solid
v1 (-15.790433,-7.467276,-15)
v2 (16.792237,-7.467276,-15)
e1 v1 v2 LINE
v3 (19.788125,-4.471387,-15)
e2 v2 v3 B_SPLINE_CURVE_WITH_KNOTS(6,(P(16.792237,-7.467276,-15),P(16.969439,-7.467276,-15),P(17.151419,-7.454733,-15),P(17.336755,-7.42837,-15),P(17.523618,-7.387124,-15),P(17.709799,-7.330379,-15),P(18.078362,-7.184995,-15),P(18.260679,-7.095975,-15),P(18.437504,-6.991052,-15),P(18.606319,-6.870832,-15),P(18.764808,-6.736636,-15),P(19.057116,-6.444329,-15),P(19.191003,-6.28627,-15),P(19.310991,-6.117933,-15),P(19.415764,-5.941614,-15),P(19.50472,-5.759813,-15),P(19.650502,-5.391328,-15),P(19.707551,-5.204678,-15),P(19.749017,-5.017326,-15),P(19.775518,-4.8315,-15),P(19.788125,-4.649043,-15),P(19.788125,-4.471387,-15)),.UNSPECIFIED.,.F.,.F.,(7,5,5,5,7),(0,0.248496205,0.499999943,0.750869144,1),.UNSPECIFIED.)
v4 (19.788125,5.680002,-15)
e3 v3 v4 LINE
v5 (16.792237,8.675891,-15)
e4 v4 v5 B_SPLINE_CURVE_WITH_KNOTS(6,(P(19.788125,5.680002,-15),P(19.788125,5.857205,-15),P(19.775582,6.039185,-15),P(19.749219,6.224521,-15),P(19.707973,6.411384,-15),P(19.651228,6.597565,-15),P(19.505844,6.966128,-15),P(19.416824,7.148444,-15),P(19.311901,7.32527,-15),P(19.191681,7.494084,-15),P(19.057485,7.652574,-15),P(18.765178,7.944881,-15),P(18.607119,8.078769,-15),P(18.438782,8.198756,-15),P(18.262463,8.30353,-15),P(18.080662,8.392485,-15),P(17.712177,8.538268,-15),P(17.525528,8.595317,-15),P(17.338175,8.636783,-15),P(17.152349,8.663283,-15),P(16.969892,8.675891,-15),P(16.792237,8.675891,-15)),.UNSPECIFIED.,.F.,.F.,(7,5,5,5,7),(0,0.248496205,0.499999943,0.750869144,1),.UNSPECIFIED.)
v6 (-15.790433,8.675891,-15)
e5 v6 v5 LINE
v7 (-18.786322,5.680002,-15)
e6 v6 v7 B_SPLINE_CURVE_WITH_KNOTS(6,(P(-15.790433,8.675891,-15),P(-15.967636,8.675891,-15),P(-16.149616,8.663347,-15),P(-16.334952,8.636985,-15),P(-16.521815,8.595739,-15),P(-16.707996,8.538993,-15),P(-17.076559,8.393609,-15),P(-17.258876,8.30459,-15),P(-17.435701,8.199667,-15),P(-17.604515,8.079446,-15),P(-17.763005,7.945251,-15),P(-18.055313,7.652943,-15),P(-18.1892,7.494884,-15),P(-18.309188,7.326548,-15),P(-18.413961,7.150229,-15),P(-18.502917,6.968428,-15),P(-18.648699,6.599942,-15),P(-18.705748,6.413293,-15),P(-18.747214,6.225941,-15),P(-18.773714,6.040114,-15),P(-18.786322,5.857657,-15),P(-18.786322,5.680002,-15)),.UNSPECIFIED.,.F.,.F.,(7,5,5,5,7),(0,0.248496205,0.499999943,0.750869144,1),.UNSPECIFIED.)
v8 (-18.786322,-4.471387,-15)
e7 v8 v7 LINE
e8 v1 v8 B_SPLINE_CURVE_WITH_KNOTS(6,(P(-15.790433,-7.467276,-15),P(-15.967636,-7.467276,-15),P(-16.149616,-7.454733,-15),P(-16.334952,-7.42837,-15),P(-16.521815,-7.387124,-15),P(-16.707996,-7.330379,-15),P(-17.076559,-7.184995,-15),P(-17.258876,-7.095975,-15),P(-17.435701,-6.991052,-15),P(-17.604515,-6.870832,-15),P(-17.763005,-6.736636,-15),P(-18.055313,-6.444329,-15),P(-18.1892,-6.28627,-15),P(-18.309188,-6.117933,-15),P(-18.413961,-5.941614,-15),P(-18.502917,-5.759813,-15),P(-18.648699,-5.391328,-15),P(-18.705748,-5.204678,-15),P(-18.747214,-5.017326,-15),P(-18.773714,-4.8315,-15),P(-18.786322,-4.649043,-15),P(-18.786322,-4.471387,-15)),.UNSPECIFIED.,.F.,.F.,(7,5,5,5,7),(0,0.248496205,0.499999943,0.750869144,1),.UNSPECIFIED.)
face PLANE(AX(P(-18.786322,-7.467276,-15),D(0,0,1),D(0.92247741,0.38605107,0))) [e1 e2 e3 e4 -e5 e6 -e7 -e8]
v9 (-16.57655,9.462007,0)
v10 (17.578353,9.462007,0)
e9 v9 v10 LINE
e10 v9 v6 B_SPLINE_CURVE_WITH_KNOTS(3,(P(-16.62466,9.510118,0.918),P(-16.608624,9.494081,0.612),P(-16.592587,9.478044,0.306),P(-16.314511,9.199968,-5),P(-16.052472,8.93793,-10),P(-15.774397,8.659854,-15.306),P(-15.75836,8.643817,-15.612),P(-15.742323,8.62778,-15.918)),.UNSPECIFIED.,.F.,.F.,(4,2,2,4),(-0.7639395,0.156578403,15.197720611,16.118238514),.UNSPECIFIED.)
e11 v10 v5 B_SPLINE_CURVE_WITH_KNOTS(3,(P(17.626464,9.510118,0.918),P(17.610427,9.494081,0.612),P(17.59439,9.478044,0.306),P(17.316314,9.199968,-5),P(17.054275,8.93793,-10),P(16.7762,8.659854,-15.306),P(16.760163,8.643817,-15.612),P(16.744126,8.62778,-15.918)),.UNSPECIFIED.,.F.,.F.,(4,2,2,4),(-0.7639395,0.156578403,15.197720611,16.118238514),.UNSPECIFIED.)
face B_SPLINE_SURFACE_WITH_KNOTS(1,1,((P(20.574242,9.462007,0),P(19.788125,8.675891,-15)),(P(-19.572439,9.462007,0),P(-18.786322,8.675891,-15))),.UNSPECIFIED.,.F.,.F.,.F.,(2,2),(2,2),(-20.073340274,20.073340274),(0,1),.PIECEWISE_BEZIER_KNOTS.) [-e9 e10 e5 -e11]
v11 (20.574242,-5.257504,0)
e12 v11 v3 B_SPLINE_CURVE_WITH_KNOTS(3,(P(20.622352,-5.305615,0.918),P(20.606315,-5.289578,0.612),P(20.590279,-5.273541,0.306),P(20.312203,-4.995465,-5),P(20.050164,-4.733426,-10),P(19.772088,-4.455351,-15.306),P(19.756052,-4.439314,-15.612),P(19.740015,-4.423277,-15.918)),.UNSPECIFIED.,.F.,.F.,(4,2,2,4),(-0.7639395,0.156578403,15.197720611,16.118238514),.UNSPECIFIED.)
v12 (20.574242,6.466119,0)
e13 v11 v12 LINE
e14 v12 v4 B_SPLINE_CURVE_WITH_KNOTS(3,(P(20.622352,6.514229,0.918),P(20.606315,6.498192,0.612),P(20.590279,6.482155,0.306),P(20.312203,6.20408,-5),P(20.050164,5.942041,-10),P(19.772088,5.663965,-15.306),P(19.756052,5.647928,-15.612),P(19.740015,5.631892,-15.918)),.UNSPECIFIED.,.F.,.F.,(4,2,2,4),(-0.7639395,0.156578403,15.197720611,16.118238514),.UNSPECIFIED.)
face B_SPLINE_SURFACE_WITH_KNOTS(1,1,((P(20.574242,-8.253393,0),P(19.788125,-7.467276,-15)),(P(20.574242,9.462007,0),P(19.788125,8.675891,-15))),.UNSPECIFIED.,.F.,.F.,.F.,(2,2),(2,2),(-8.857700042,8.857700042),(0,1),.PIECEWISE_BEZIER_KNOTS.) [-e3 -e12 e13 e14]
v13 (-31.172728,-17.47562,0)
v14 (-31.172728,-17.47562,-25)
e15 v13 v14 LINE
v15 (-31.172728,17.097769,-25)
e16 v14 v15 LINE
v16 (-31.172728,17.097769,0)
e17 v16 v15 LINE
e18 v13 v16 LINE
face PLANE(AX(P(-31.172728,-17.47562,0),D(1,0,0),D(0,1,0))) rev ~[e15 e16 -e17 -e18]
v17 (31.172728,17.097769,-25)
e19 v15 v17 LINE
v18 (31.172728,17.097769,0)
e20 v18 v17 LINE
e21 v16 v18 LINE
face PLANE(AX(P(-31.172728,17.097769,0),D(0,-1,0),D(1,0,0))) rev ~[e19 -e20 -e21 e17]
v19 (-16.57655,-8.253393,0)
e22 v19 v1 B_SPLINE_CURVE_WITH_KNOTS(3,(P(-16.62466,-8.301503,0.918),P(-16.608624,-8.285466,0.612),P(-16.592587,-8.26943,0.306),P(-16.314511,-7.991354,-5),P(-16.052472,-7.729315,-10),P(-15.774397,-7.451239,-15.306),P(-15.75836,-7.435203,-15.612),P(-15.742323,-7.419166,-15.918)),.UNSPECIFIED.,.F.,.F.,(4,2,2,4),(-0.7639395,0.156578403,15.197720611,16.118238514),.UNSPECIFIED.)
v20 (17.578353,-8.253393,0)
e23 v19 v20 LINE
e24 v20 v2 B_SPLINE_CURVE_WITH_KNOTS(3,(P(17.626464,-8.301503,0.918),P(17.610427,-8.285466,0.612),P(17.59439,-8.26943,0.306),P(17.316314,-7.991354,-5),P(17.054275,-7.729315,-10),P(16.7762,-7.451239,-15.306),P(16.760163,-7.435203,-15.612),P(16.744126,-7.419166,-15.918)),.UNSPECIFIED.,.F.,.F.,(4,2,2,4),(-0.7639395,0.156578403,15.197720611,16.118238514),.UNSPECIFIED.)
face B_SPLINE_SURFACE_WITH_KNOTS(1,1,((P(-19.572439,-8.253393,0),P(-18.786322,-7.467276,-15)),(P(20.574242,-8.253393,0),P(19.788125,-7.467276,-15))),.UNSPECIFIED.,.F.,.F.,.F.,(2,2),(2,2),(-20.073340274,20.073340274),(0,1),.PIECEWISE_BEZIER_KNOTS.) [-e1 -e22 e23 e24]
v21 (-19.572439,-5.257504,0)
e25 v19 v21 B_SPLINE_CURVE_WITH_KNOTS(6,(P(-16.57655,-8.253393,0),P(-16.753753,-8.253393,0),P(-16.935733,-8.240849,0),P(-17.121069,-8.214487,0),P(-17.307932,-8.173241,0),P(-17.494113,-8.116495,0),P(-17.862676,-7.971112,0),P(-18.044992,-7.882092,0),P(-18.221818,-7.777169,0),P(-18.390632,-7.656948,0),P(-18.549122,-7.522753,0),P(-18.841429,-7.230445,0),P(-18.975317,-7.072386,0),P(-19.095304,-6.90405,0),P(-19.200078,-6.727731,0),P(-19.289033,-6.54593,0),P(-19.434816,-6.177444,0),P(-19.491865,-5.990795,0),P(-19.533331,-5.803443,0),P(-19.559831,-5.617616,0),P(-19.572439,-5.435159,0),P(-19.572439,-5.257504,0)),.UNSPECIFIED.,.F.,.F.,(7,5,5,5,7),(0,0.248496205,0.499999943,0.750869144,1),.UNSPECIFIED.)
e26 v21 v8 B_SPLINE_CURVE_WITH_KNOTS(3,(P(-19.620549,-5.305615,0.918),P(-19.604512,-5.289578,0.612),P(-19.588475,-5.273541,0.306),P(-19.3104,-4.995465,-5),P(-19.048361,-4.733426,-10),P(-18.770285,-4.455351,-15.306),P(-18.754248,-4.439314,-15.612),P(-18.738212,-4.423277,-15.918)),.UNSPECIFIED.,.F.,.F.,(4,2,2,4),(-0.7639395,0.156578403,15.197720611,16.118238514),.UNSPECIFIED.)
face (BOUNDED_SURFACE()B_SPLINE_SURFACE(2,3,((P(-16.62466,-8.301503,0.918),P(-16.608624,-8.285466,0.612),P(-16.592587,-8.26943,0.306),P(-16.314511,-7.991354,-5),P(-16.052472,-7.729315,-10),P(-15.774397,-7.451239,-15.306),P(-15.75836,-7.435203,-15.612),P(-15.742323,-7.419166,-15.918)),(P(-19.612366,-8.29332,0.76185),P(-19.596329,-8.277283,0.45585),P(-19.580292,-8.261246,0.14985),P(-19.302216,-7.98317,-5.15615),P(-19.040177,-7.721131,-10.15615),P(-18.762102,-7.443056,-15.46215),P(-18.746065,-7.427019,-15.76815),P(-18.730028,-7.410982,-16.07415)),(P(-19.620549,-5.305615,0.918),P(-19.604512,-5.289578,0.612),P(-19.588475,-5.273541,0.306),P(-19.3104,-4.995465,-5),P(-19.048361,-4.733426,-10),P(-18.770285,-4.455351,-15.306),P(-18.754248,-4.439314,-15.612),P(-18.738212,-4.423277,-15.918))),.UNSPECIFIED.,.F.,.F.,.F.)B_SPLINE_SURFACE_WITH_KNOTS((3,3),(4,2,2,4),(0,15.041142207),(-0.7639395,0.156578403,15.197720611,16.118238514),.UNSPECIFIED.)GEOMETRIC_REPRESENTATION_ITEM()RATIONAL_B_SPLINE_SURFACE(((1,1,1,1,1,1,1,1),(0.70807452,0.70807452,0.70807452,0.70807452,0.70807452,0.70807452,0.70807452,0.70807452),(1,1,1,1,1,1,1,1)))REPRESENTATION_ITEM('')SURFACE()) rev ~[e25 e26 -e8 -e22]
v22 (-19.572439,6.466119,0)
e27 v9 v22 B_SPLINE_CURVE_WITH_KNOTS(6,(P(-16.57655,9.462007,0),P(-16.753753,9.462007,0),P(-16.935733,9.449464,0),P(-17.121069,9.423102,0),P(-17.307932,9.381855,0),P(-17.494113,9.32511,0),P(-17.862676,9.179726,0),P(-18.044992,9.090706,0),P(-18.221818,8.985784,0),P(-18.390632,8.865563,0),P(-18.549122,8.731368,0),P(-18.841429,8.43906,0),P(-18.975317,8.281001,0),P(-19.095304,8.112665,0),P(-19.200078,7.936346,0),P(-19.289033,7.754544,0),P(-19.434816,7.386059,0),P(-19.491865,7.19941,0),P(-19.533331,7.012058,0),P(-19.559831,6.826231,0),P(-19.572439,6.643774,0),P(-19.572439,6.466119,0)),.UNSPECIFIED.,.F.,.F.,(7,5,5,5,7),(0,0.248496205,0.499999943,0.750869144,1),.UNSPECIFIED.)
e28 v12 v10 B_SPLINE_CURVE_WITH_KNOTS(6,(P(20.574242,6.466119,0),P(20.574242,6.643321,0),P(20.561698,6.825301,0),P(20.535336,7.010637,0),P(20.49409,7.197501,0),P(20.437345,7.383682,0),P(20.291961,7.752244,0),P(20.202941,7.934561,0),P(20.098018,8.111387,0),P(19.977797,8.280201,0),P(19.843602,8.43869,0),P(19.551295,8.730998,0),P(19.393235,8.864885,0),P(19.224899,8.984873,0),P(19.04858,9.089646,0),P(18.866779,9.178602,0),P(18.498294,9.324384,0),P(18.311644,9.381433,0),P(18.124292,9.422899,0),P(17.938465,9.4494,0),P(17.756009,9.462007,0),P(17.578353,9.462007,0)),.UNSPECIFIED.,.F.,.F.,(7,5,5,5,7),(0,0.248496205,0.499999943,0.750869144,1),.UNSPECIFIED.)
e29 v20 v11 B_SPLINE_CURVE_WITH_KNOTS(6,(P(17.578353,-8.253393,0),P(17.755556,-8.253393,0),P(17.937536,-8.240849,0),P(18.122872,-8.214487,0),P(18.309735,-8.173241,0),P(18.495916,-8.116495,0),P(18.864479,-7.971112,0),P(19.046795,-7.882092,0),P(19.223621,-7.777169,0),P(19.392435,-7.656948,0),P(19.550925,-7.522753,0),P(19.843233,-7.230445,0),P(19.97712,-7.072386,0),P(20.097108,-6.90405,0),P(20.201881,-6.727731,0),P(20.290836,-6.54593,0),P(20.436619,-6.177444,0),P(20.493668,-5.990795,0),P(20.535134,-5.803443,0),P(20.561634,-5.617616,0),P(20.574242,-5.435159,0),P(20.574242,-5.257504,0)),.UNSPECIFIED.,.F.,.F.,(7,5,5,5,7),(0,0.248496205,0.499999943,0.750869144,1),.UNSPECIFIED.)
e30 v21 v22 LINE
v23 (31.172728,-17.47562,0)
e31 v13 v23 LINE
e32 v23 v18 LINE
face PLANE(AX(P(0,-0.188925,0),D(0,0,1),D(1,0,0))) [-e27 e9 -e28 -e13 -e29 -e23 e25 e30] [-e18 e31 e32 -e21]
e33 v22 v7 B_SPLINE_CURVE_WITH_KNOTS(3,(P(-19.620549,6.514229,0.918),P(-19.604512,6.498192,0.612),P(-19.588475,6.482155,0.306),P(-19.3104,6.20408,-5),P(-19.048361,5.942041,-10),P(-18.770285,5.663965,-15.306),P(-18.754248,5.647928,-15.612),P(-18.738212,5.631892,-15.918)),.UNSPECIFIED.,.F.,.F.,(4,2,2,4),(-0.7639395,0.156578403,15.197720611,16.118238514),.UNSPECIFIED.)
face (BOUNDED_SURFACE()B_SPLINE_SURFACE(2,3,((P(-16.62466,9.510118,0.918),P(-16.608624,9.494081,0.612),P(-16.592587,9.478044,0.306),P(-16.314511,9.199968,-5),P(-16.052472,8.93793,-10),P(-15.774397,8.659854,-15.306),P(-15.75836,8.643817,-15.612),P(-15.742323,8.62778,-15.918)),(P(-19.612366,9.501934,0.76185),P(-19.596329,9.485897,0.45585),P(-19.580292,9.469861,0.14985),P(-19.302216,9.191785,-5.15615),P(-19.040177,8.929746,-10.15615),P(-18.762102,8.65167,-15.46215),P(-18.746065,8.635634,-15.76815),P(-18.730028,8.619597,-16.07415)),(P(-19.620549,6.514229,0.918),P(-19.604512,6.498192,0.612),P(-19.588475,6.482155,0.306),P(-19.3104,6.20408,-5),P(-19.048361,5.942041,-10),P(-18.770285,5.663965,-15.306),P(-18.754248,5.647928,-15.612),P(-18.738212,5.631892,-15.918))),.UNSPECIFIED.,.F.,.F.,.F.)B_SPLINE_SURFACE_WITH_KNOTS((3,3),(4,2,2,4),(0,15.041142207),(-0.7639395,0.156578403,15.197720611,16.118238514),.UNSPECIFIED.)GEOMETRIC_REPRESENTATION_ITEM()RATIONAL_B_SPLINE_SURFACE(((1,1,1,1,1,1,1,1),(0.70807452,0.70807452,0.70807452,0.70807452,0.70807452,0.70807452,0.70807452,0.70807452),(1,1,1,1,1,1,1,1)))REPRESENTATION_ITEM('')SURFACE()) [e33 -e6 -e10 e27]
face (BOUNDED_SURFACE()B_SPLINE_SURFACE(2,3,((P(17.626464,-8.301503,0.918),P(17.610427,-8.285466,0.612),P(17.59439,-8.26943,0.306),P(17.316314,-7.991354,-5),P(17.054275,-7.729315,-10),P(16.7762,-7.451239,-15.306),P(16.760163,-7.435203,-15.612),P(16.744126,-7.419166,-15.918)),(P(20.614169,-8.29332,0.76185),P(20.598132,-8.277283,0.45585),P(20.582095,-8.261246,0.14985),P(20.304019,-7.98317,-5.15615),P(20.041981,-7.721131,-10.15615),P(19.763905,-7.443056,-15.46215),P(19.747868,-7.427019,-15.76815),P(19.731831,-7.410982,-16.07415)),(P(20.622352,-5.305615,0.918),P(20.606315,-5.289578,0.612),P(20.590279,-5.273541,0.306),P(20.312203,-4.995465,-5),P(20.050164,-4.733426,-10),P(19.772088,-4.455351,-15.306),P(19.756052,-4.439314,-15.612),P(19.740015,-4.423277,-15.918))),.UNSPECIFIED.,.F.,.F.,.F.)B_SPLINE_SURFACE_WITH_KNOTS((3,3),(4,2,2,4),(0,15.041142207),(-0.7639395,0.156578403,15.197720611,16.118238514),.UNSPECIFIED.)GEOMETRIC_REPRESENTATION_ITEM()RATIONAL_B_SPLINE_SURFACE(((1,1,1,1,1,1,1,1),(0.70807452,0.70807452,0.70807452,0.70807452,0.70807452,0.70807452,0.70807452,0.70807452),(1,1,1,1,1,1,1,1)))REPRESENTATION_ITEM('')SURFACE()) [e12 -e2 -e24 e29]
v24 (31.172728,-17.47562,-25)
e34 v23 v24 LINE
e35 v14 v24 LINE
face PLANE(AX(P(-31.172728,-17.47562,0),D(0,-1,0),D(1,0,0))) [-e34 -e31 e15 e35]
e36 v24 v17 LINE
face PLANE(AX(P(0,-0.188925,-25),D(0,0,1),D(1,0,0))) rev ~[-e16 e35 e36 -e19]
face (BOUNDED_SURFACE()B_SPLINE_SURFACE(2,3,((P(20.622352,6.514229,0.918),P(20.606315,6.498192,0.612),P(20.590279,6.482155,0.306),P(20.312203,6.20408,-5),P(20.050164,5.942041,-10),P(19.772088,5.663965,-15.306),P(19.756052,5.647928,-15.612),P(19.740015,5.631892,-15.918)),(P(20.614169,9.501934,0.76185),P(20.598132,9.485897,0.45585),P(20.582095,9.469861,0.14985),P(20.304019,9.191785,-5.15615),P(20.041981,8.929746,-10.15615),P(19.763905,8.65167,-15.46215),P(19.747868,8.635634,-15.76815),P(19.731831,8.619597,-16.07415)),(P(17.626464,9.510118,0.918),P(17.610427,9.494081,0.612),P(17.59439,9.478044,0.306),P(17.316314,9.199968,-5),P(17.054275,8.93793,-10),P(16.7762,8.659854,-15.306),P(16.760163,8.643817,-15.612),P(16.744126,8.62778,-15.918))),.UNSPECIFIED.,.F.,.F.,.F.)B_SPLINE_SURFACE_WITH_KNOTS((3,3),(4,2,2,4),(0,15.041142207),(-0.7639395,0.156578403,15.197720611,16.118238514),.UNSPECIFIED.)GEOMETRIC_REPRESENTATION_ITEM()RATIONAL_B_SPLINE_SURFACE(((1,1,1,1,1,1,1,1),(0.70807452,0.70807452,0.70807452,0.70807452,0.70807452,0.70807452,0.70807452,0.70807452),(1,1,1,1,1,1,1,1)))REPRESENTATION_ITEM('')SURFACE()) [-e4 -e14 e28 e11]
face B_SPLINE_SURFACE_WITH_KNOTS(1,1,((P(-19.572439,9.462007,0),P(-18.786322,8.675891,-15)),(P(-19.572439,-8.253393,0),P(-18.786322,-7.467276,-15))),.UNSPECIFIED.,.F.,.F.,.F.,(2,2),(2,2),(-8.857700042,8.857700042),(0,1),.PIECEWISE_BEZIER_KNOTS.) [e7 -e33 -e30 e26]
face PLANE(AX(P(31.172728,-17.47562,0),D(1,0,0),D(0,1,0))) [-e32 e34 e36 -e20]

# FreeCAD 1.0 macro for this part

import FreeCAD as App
import Part
import Sketcher
from FreeCAD import Vector
Q = App.Units.Quantity


def edges_at(feature, points):
    """Names of the edges that pass closest to the given points."""
    edges = feature.Shape.Edges
    near = lambda p: min(range(len(edges)), key=lambda i: edges[i].distToShape(Part.Vertex(*p))[0])
    return sorted({f"Edge{near(p) + 1}" for p in points})


def add_polygon(sketch, points):
    """Adds a closed chain of lines whose ends are joined by coincident constraints."""
    first, n = sketch.GeometryCount, len(points)
    for a, b in zip(points, points[1:] + points[:1]):
        sketch.addGeometry(Part.LineSegment(App.Vector(*a, 0), App.Vector(*b, 0)), False)
    for i in range(n):
        sketch.addConstraint(Sketcher.Constraint("Coincident", first + i, 2, first + (i + 1) % n, 1))

doc = App.newDocument("Part")
params = doc.addObject("Spreadsheet::Sheet", "Params")
for row, (alias, value) in enumerate([
    ("pad1_length", "25 mm"),
    ("pocket1_length", "15 mm"),
    ("pocket1_taper", "-3 deg"),
    ("fillet_radius", "3 mm"),
], start=1):
    params.set(f"A{row}", alias)
    params.set(f"B{row}", "=" + value)
    params.setAlias(f"B{row}", alias)

body = doc.addObject("PartDesign::Body", "Body")

# Sketch on XY plane
sketch1 = body.newObject("Sketcher::SketchObject", "Sketch")
sketch1.AttachmentSupport = (doc.getObject("XY_Plane"), [""])
sketch1.MapMode = "FlatFace"
add_polygon(sketch1, [(-31, 17), (-31, -17), (31, -17), (31, 17)])  # lines 0-3
sketch1.addConstraint(Sketcher.Constraint("Vertical", 0))
sketch1.addConstraint(Sketcher.Constraint("Horizontal", 1))
sketch1.addConstraint(Sketcher.Constraint("Vertical", 2))
sketch1.addConstraint(Sketcher.Constraint("Horizontal", 3))
sketch1.addConstraint(Sketcher.Constraint("DistanceY", 0, 2, 0, 1, Q("34.573389 mm")))
sketch1.addConstraint(Sketcher.Constraint("DistanceX", 1, 1, 1, 2, Q("62.345456 mm")))
sketch1.addConstraint(Sketcher.Constraint("DistanceX", 0, 2, -1, 1, Q("31.172728 mm")))
sketch1.addConstraint(Sketcher.Constraint("DistanceY", 0, 2, -1, 1, Q("17.47562 mm")))
pad1 = body.newObject("PartDesign::Pad", "Pad")
pad1.Profile = sketch1
pad1.setExpression("Length", "Params.pad1_length")
pad1.Reversed = True

# Sketch on XY plane
sketch2 = body.newObject("Sketcher::SketchObject", "Sketch001")
sketch2.AttachmentSupport = (doc.getObject("XY_Plane"), [""])
sketch2.MapMode = "FlatFace"
add_polygon(sketch2, [(-20, 9), (-20, -8), (21, -8), (21, 9)])  # lines 0-3
sketch2.addConstraint(Sketcher.Constraint("Vertical", 0))
sketch2.addConstraint(Sketcher.Constraint("Horizontal", 1))
sketch2.addConstraint(Sketcher.Constraint("Vertical", 2))
sketch2.addConstraint(Sketcher.Constraint("Horizontal", 3))
sketch2.addConstraint(Sketcher.Constraint("DistanceY", 0, 2, 0, 1, Q("17.7154 mm")))
sketch2.addConstraint(Sketcher.Constraint("DistanceX", 1, 1, 1, 2, Q("40.146681 mm")))
sketch2.addConstraint(Sketcher.Constraint("DistanceX", 0, 2, -1, 1, Q("19.572439 mm")))
sketch2.addConstraint(Sketcher.Constraint("DistanceY", 0, 2, -1, 1, Q("8.253393 mm")))
pocket1 = body.newObject("PartDesign::Pocket", "Pocket")
pocket1.Profile = sketch2
pocket1.setExpression("Length", "Params.pocket1_length")
pocket1.setExpression("TaperAngle", "Params.pocket1_taper")
doc.recompute()

fillet = body.newObject("PartDesign::Fillet", "Fillet")
fillet.Base = (pocket1, edges_at(pocket1, [
    (-19.179, 9.069, -7.5),
    (-19.179, -7.86, -7.5),
    (20.181, 9.069, -7.5),
    (20.181, -7.86, -7.5),
]))
fillet.setExpression("Radius", "Params.fillet_radius")

doc.recompute()
